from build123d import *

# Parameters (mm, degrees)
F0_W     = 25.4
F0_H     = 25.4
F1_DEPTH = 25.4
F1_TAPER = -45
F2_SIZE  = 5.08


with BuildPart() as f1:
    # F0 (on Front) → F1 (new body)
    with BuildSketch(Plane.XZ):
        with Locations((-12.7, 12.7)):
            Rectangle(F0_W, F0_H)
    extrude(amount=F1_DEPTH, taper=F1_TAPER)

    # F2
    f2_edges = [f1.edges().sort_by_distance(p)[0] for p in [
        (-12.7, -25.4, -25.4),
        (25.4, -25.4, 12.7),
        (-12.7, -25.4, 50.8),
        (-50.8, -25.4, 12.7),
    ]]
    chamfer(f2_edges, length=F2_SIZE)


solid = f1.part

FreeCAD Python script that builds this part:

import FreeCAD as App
import Part
import Sketcher

V = App.Vector
Q = App.Units.Quantity


def edges_at(feature, points):
    """Names of the edges that pass closest to the given points."""
    edges = feature.Shape.Edges
    near = lambda p: min(range(len(edges)), key=lambda i: edges[i].distToShape(Part.Vertex(*p))[0])
    return sorted({f"Edge{near(p) + 1}" for p in points})

doc = App.newDocument("Part")
params = doc.addObject("Spreadsheet::Sheet", "Params")
for row, (alias, value) in enumerate([
    ("sketch1_width", "1 in"),
    ("pad1_length", "1 in"),
    ("pad1_taper", "45 deg"),
    ("chamfer_size", "0.2 in"),
], start=1):
    params.set(f"A{row}", alias)
    params.set(f"B{row}", "=" + value)
    params.setAlias(f"B{row}", alias)

body = doc.addObject("PartDesign::Body", "Body")

# Sketch on XZ plane
sketch1 = body.newObject("Sketcher::SketchObject", "Sketch")
sketch1.AttachmentSupport = (doc.getObject("XZ_Plane"), [""])
sketch1.MapMode = "FlatFace"
sketch1.addGeometry([
    Part.LineSegment(V(-25.4, 25.4, 0), V(-25.4, 0, 0)),
    Part.LineSegment(V(-25.4, 0, 0), V(0, 0, 0)),
    Part.LineSegment(V(0, 0, 0), V(0, 25.4, 0)),
    Part.LineSegment(V(0, 25.4, 0), V(-25.4, 25.4, 0)),
], False)
sketch1.addConstraint([
    Sketcher.Constraint("Coincident", 0, 2, 1, 1),
    Sketcher.Constraint("Coincident", 1, 2, 2, 1),
    Sketcher.Constraint("Coincident", 2, 2, 3, 1),
    Sketcher.Constraint("Coincident", 3, 2, 0, 1),
    Sketcher.Constraint("Vertical", 0),
    Sketcher.Constraint("Horizontal", 1),
    Sketcher.Constraint("Vertical", 2),
    Sketcher.Constraint("Horizontal", 3),
    Sketcher.Constraint("Coincident", 1, 2, -1, 1),
    Sketcher.Constraint("Equal", 3, 0),
    Sketcher.Constraint("DistanceX", 1, 1, 1, 2, Q("1 in")),
])
sketch1.setExpression("Constraints[10]", "Params.sketch1_width")
pad1 = body.newObject("PartDesign::Pad", "Pad")
pad1.Profile = sketch1
pad1.setExpression("Length", "Params.pad1_length")
pad1.setExpression("TaperAngle", "Params.pad1_taper")
doc.recompute()

chamfer = body.newObject("PartDesign::Chamfer", "Chamfer")
chamfer.Base = (pad1, edges_at(pad1, [
    (-12.7, -25.4, -25.4),
    (25.4, -25.4, 12.7),
    (-12.7, -25.4, 50.8),
    (-50.8, -25.4, 12.7),
]))
chamfer.setExpression("Size", "Params.chamfer_size")

doc.recompute()
